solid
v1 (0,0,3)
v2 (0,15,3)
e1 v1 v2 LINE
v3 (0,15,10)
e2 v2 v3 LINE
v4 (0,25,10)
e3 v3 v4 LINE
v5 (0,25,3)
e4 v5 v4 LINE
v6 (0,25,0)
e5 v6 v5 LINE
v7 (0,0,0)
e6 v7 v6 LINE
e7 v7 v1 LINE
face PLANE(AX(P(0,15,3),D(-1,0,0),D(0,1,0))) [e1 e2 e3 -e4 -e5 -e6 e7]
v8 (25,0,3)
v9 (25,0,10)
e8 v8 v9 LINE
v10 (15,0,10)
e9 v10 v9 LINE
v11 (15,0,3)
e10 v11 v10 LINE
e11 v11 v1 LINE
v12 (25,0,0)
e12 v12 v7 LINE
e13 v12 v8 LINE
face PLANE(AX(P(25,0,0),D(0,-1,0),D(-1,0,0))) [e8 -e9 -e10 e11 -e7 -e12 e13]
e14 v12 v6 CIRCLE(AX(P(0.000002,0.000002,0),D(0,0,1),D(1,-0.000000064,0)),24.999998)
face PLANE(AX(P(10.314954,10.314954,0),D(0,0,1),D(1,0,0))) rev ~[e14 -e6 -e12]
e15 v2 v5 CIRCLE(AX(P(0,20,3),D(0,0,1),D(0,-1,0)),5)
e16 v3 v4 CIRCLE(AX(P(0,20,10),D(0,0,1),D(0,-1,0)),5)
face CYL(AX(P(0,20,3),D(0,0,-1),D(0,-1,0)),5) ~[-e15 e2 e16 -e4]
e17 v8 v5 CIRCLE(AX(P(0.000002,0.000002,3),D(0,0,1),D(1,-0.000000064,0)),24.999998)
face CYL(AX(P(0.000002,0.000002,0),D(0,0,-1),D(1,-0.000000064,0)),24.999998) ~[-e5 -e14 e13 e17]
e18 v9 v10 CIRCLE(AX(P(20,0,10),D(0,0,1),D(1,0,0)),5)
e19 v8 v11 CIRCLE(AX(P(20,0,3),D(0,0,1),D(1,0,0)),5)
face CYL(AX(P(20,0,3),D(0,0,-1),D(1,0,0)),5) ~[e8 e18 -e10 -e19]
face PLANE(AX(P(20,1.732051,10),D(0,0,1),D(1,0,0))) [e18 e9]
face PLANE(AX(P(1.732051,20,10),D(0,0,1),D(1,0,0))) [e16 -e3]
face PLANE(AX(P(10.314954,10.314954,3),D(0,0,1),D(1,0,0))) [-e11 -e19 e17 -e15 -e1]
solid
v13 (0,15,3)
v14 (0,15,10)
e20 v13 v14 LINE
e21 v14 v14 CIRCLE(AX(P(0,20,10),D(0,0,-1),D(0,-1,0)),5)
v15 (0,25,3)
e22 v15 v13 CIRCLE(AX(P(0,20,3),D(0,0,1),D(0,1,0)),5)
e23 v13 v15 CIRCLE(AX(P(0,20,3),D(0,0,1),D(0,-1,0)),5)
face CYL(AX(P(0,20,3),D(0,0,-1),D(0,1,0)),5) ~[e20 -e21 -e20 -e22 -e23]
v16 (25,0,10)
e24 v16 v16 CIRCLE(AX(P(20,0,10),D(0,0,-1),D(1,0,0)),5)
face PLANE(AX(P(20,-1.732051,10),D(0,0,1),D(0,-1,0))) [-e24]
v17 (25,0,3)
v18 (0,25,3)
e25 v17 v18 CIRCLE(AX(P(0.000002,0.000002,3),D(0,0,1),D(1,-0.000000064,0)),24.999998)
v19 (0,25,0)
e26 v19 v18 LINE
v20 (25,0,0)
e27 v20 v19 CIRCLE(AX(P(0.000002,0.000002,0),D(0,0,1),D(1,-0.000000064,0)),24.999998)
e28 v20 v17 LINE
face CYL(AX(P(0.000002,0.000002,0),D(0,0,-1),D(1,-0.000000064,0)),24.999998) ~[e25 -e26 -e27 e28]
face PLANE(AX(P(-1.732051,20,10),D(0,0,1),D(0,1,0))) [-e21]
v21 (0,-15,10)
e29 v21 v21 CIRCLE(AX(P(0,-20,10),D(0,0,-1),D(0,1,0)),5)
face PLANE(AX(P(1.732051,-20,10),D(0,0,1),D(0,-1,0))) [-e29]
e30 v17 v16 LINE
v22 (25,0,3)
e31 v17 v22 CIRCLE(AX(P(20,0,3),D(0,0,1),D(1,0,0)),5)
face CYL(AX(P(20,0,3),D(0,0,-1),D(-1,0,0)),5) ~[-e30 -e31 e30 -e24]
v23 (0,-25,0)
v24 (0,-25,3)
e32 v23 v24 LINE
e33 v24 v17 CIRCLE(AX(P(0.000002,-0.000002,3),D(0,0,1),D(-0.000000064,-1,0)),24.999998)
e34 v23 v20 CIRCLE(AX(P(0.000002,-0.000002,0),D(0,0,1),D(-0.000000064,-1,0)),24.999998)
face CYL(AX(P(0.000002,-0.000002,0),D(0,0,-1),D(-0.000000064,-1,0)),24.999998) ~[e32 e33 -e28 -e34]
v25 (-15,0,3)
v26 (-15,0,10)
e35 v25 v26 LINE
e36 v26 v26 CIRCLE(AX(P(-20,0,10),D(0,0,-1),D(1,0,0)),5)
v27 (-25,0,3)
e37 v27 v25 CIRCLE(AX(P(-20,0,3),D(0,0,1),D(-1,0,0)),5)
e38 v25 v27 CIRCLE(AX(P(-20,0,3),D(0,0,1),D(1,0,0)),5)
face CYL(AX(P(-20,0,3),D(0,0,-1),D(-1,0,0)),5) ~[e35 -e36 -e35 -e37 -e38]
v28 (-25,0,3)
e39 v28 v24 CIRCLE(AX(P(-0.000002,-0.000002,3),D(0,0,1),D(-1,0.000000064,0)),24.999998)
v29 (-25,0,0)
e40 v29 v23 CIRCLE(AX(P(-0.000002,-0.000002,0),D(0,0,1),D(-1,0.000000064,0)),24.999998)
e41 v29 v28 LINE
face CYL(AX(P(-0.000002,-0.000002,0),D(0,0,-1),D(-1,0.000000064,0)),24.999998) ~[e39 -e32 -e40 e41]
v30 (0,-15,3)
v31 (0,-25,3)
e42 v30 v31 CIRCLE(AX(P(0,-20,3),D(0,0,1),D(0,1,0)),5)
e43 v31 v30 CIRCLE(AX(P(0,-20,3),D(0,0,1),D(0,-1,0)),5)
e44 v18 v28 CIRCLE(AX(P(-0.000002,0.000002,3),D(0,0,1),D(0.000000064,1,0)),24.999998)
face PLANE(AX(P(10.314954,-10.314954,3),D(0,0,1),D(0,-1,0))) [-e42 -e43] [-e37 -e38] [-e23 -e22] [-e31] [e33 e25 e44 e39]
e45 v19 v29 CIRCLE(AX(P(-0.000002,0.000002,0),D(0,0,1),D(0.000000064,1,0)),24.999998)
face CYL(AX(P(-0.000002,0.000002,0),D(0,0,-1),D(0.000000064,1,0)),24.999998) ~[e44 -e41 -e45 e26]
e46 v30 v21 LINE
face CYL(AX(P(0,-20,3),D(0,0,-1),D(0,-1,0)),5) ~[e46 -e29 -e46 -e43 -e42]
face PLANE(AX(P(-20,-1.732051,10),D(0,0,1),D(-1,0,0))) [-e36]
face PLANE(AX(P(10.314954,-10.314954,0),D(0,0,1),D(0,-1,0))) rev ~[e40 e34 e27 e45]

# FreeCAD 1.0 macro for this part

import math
import FreeCAD as App
import Part
import Sketcher
from FreeCAD import Vector
Q = App.Units.Quantity

doc = App.newDocument("Part")
params = doc.addObject("Spreadsheet::Sheet", "Params")
for row, (alias, value) in enumerate([
    ("sketch1_radius", "24.999998 mm"),
    ("pad1_length", "3 mm"),
    ("sketch2_radius", "5 mm"),
    ("pad2_length", "7 mm"),
    ("sketch3_radius", "24.999998 mm"),
    ("pad3_length", "3 mm"),
    ("sketch4_radius", "5 mm"),
    ("pad4_length", "7 mm"),
], start=1):
    params.set(f"A{row}", alias)
    params.set(f"B{row}", "=" + value)
    params.setAlias(f"B{row}", alias)

body = doc.addObject("PartDesign::Body", "Body")

# Sketch on XY plane
sketch1 = body.newObject("Sketcher::SketchObject", "Sketch")
sketch1.AttachmentSupport = (doc.getObject("XY_Plane"), [""])
sketch1.MapMode = "FlatFace"
sketch1.addGeometry(Part.ArcOfCircle(Part.Circle(Vector(0, 0, 0), Vector(0, 0, 1), 25), math.radians(0), math.radians(90)), False)
sketch1.addGeometry(Part.LineSegment(Vector(0, 25, 0), Vector(0, 0, 0)), False)
sketch1.addGeometry(Part.LineSegment(Vector(0, 0, 0), Vector(25, 0, 0)), False)
sketch1.addConstraint(Sketcher.Constraint("Coincident", 0, 2, 1, 1))
sketch1.addConstraint(Sketcher.Constraint("Coincident", 1, 2, 2, 1))
sketch1.addConstraint(Sketcher.Constraint("Coincident", 2, 2, 0, 1))
sketch1.addConstraint(Sketcher.Constraint("Vertical", 1))
sketch1.addConstraint(Sketcher.Constraint("Horizontal", 2))
sketch1.addConstraint(Sketcher.Constraint("Coincident", 0, 3, -1, 1))
sketch1.addConstraint(Sketcher.Constraint("Coincident", 1, 2, -1, 1))
sketch1.addConstraint(Sketcher.Constraint("Radius", 0, Q("24.999998 mm")))
sketch1.setExpression("Constraints[7]", "Params.sketch1_radius")
pad1 = body.newObject("PartDesign::Pad", "Pad")
pad1.Profile = sketch1
pad1.setExpression("Length", "Params.pad1_length")

# Sketch on XY plane
sketch2 = body.newObject("Sketcher::SketchObject", "Sketch001")
sketch2.AttachmentSupport = (doc.getObject("XY_Plane"), [""])
sketch2.MapMode = "FlatFace"
sketch2.AttachmentOffset = App.Placement(Vector(0, 0, 3), App.Rotation())
sketch2.addGeometry(Part.ArcOfCircle(Part.Circle(Vector(0, 20, 0), Vector(0, 0, 1), 5), math.radians(-90), math.radians(90)), False)
sketch2.addGeometry(Part.LineSegment(Vector(0, 25, 0), Vector(0, 15, 0)), False)
sketch2.addGeometry(Part.ArcOfCircle(Part.Circle(Vector(20, 0, 0), Vector(0, 0, 1), 5), math.radians(0), math.radians(180)), False)
sketch2.addGeometry(Part.LineSegment(Vector(15, 0, 0), Vector(25, 0, 0)), False)
sketch2.addConstraint(Sketcher.Constraint("Coincident", 0, 1, 1, 2))
sketch2.addConstraint(Sketcher.Constraint("Coincident", 1, 1, 0, 2))
sketch2.addConstraint(Sketcher.Constraint("Coincident", 2, 1, 3, 2))
sketch2.addConstraint(Sketcher.Constraint("Coincident", 3, 1, 2, 2))
sketch2.addConstraint(Sketcher.Constraint("Vertical", 1))
sketch2.addConstraint(Sketcher.Constraint("Horizontal", 3))
sketch2.addConstraint(Sketcher.Constraint("Equal", 0, 2))
sketch2.addConstraint(Sketcher.Constraint("PointOnObject", 0, 3, -2))
sketch2.addConstraint(Sketcher.Constraint("PointOnObject", 2, 3, -1))
sketch2.addConstraint(Sketcher.Constraint("PointOnObject", 0, 1, -2))
sketch2.addConstraint(Sketcher.Constraint("PointOnObject", 2, 1, -1))
sketch2.addConstraint(Sketcher.Constraint("Radius", 0, Q("5 mm")))
sketch2.addConstraint(Sketcher.Constraint("DistanceY", -1, 1, 0, 3, Q("20 mm")))
sketch2.addConstraint(Sketcher.Constraint("DistanceX", -1, 1, 2, 3, Q("20 mm")))
sketch2.setExpression("Constraints[11]", "Params.sketch2_radius")
pad2 = body.newObject("PartDesign::Pad", "Pad001")
pad2.Profile = sketch2
pad2.setExpression("Length", "Params.pad2_length")
body2 = doc.addObject("PartDesign::Body", "Body001")

# Sketch on XY plane
sketch3 = body2.newObject("Sketcher::SketchObject", "Sketch002")
sketch3.AttachmentSupport = (doc.getObject("XY_Plane001"), [""])
sketch3.MapMode = "FlatFace"
sketch3.addGeometry(Part.ArcOfCircle(Part.Circle(Vector(0, 0, 0), Vector(0, 0, 1), 25), math.radians(0), math.radians(90)), False)
sketch3.addGeometry(Part.LineSegment(Vector(0, 25, 0), Vector(0, 0, 0)), False)
sketch3.addGeometry(Part.LineSegment(Vector(0, 0, 0), Vector(25, 0, 0)), False)
sketch3.addConstraint(Sketcher.Constraint("Coincident", 0, 2, 1, 1))
sketch3.addConstraint(Sketcher.Constraint("Coincident", 1, 2, 2, 1))
sketch3.addConstraint(Sketcher.Constraint("Coincident", 2, 2, 0, 1))
sketch3.addConstraint(Sketcher.Constraint("Vertical", 1))
sketch3.addConstraint(Sketcher.Constraint("Horizontal", 2))
sketch3.addConstraint(Sketcher.Constraint("Coincident", 0, 3, -1, 1))
sketch3.addConstraint(Sketcher.Constraint("Coincident", 1, 2, -1, 1))
sketch3.addConstraint(Sketcher.Constraint("Radius", 0, Q("24.999998 mm")))
sketch3.setExpression("Constraints[7]", "Params.sketch3_radius")
pad3 = body2.newObject("PartDesign::Pad", "Pad002")
pad3.Profile = sketch3
pad3.setExpression("Length", "Params.pad3_length")

# Sketch on XY plane
sketch4 = body2.newObject("Sketcher::SketchObject", "Sketch003")
sketch4.AttachmentSupport = (doc.getObject("XY_Plane001"), [""])
sketch4.MapMode = "FlatFace"
sketch4.AttachmentOffset = App.Placement(Vector(0, 0, 3), App.Rotation())
sketch4.addGeometry(Part.ArcOfCircle(Part.Circle(Vector(0, 20, 0), Vector(0, 0, 1), 5), math.radians(-90), math.radians(90)), False)
sketch4.addGeometry(Part.LineSegment(Vector(0, 25, 0), Vector(0, 15, 0)), False)
sketch4.addGeometry(Part.ArcOfCircle(Part.Circle(Vector(20, 0, 0), Vector(0, 0, 1), 5), math.radians(0), math.radians(180)), False)
sketch4.addGeometry(Part.LineSegment(Vector(15, 0, 0), Vector(25, 0, 0)), False)
sketch4.addConstraint(Sketcher.Constraint("Coincident", 0, 1, 1, 2))
sketch4.addConstraint(Sketcher.Constraint("Coincident", 1, 1, 0, 2))
sketch4.addConstraint(Sketcher.Constraint("Coincident", 2, 1, 3, 2))
sketch4.addConstraint(Sketcher.Constraint("Coincident", 3, 1, 2, 2))
sketch4.addConstraint(Sketcher.Constraint("Vertical", 1))
sketch4.addConstraint(Sketcher.Constraint("Horizontal", 3))
sketch4.addConstraint(Sketcher.Constraint("Equal", 0, 2))
sketch4.addConstraint(Sketcher.Constraint("PointOnObject", 0, 3, -2))
sketch4.addConstraint(Sketcher.Constraint("PointOnObject", 2, 3, -1))
sketch4.addConstraint(Sketcher.Constraint("PointOnObject", 0, 1, -2))
sketch4.addConstraint(Sketcher.Constraint("PointOnObject", 2, 1, -1))
sketch4.addConstraint(Sketcher.Constraint("Radius", 0, Q("5 mm")))
sketch4.addConstraint(Sketcher.Constraint("DistanceY", -1, 1, 0, 3, Q("20 mm")))
sketch4.addConstraint(Sketcher.Constraint("DistanceX", -1, 1, 2, 3, Q("20 mm")))
sketch4.setExpression("Constraints[11]", "Params.sketch4_radius")
pad4 = body2.newObject("PartDesign::Pad", "Pad003")
pad4.Profile = sketch4
pad4.setExpression("Length", "Params.pad4_length")
body3 = doc.addObject("PartDesign::Body", "Body002")
doc.recompute()

body3.BaseFeature = body2
doc.recompute()

body4 = doc.addObject("PartDesign::Body", "Body003")
body4.BaseFeature = body2
body4.Placement = App.Placement(Vector(0, 0, 0), App.Rotation(Vector(0, 0, 1), 90))
boolean = body3.newObject("PartDesign::Boolean", "Boolean")
boolean.Type = "Fuse"
boolean.addObjects([body4])
doc.recompute()

body5 = doc.addObject("PartDesign::Body", "Body004")
body5.BaseFeature = body2
body5.Placement = App.Placement(Vector(0, 0, 0), App.Rotation(Vector(0, 0, 1), 180))
boolean2 = body3.newObject("PartDesign::Boolean", "Boolean001")
boolean2.Type = "Fuse"
boolean2.addObjects([body5])
doc.recompute()

body2.Placement = App.Placement(Vector(0, 0, 0), App.Rotation(Vector(0, 0, 1), 270))
boolean3 = body3.newObject("PartDesign::Boolean", "Boolean002")
boolean3.Type = "Fuse"
boolean3.addObjects([body2])

doc.recompute()
